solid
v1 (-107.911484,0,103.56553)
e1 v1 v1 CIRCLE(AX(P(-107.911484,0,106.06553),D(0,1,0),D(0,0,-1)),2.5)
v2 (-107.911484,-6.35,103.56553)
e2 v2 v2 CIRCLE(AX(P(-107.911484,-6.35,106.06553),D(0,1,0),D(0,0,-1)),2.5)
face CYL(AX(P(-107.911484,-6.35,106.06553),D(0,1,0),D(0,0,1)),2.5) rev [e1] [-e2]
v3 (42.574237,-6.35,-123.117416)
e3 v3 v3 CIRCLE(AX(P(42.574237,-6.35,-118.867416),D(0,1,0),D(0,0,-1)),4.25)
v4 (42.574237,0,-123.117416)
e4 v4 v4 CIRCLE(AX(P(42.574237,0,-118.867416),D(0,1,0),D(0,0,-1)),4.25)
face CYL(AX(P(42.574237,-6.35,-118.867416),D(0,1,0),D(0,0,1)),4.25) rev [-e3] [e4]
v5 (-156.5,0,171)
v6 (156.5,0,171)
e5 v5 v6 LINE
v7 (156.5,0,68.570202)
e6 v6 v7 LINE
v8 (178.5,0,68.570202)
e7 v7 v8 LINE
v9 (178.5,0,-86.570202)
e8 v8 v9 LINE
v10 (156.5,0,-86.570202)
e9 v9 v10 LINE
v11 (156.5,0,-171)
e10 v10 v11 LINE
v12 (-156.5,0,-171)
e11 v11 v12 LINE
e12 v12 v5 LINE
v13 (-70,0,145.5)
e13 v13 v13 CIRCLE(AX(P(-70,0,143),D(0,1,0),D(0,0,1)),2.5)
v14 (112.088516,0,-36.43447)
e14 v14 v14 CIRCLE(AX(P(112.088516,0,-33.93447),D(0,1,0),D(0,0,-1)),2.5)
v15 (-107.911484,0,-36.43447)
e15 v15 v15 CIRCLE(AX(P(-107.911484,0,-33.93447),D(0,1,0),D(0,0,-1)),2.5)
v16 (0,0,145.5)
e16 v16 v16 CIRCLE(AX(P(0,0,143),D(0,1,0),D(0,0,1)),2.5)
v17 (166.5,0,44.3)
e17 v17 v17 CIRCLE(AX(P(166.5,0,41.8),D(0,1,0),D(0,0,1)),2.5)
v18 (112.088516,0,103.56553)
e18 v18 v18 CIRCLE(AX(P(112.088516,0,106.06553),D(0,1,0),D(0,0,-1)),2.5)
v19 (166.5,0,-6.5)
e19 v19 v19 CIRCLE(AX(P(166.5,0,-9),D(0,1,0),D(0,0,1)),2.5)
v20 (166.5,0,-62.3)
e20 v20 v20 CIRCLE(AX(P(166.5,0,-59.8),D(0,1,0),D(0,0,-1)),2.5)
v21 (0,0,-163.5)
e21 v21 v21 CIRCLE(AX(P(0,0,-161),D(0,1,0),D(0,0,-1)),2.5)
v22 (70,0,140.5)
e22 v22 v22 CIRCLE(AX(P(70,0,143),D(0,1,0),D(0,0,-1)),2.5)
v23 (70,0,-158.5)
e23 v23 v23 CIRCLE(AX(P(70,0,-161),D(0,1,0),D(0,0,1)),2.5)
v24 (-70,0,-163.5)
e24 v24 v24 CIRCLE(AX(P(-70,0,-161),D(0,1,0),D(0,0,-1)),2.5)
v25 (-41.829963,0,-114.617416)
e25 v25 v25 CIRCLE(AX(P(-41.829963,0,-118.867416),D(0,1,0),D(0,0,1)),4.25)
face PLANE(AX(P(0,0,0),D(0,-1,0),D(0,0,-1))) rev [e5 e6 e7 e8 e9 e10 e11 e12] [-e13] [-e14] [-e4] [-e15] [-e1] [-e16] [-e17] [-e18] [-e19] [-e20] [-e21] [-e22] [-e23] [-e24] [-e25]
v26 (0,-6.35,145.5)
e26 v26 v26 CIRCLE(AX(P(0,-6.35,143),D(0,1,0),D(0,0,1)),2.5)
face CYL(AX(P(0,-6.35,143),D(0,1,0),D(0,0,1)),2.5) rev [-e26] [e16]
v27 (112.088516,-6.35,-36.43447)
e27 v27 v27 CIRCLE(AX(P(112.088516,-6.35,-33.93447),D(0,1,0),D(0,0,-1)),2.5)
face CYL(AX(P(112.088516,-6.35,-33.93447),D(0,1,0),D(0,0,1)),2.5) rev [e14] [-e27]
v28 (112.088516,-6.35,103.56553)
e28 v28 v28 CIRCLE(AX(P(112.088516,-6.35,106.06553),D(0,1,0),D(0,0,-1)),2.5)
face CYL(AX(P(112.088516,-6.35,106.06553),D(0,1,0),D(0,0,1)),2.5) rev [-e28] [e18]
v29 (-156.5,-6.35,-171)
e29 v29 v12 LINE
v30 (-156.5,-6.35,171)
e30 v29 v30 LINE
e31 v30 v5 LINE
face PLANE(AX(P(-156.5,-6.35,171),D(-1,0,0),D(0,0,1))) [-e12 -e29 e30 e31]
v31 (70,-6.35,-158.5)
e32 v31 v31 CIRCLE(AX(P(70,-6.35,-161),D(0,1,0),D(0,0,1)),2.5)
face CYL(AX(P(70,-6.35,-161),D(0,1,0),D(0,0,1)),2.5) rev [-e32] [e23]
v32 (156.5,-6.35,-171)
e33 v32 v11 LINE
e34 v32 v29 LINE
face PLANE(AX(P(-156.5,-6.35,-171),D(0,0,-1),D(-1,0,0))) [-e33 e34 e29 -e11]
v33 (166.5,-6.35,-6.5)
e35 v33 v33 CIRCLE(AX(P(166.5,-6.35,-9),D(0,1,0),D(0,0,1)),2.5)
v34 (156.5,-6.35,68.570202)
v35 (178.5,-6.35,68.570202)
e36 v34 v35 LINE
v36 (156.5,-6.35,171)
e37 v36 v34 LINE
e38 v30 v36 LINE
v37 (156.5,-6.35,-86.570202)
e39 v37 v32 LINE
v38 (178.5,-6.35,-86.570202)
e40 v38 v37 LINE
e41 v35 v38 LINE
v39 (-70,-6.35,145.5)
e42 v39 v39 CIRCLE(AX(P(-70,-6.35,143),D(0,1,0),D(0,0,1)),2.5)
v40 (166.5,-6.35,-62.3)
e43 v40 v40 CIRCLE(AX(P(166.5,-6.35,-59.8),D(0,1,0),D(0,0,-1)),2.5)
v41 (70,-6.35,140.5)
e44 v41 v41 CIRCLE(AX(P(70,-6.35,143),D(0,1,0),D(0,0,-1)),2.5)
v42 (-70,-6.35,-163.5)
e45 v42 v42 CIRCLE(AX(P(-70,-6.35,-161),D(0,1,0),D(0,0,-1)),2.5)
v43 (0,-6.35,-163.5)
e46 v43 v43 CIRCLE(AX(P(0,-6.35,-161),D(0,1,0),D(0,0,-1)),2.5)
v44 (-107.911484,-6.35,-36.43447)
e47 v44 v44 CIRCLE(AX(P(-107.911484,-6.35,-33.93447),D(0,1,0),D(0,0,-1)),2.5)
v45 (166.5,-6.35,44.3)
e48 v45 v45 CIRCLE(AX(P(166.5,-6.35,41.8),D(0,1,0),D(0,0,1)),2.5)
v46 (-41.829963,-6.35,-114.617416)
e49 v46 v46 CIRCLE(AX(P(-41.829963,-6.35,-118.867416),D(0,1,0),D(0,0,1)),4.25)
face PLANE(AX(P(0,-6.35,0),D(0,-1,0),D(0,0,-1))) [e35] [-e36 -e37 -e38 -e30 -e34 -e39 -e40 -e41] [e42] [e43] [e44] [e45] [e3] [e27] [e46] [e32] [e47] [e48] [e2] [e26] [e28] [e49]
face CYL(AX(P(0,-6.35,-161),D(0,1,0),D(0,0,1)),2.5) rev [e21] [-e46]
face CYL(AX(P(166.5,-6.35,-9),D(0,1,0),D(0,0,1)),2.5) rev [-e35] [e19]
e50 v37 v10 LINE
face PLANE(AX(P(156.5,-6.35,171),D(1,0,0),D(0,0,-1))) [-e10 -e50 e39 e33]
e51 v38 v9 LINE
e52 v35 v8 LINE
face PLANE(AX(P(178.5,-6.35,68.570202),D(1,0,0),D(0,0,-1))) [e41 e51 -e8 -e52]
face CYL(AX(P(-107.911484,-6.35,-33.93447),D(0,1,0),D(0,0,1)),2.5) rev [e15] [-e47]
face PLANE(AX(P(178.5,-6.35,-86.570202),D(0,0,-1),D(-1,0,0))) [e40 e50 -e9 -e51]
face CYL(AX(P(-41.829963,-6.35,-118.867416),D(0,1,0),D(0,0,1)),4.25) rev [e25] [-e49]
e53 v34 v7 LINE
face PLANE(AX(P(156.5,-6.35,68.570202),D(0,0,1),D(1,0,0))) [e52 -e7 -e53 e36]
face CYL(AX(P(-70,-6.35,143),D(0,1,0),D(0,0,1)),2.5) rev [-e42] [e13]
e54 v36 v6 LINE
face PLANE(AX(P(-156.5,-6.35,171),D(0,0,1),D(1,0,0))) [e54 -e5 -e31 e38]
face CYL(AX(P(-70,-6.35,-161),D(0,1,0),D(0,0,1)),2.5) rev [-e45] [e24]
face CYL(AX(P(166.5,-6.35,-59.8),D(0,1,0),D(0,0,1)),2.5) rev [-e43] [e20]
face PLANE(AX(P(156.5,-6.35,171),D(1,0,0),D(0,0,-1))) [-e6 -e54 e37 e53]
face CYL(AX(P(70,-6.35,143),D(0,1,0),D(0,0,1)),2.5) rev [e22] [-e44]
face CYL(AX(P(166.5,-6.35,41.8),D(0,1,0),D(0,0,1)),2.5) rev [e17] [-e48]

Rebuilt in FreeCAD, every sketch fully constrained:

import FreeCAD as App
import Part
import Sketcher

V = App.Vector
Q = App.Units.Quantity

doc = App.newDocument("Part")
body = doc.addObject("PartDesign::Body", "Body")

# Sketch on XZ plane
sketch1 = body.newObject("Sketcher::SketchObject", "Sketch")
sketch1.AttachmentSupport = (doc.getObject("XZ_Plane"), [""])
sketch1.MapMode = "FlatFace"
sketch1.addGeometry(Part.LineSegment(V(-156, -171, 0), V(-156, 171, 0)), False)
sketch1.addGeometry(Part.LineSegment(V(-156, 171, 0), V(156, 171, 0)), False)
sketch1.addGeometry(Part.LineSegment(V(156, 171, 0), V(156, -171, 0)), False)
sketch1.addGeometry(Part.LineSegment(V(156, -171, 0), V(-156, -171, 0)), False)
sketch1.addConstraint(Sketcher.Constraint("Coincident", 0, 2, 1, 1))
sketch1.addConstraint(Sketcher.Constraint("Coincident", 1, 2, 2, 1))
sketch1.addConstraint(Sketcher.Constraint("Coincident", 2, 2, 3, 1))
sketch1.addConstraint(Sketcher.Constraint("Coincident", 3, 2, 0, 1))
sketch1.addConstraint(Sketcher.Constraint("Vertical", 0))
sketch1.addConstraint(Sketcher.Constraint("Horizontal", 1))
sketch1.addConstraint(Sketcher.Constraint("Vertical", 2))
sketch1.addConstraint(Sketcher.Constraint("Horizontal", 3))
sketch1.addConstraint(Sketcher.Constraint("Symmetric", 0, 2, 2, 2, -1, 1))
sketch1.addConstraint(Sketcher.Constraint("DistanceX", 1, 1, 1, 2, Q("313 mm")))
sketch1.addConstraint(Sketcher.Constraint("DistanceY", 0, 1, 0, 2, Q("342 mm")))
pad1 = body.newObject("PartDesign::Pad", "Pad")
pad1.Profile = sketch1
pad1.Length = 6.35

# Sketch on XZ plane
sketch2 = body.newObject("Sketcher::SketchObject", "Sketch001")
sketch2.AttachmentSupport = (doc.getObject("XZ_Plane"), [""])
sketch2.MapMode = "FlatFace"
sketch2.addGeometry(Part.LineSegment(V(156.5, -86.6, 0), V(156.5, 68.6, 0)), False)
sketch2.addGeometry(Part.LineSegment(V(156.5, 68.6, 0), V(178.5, 68.6, 0)), False)
sketch2.addGeometry(Part.LineSegment(V(178.5, 68.6, 0), V(178.5, -86.6, 0)), False)
sketch2.addGeometry(Part.LineSegment(V(178.5, -86.6, 0), V(156.5, -86.6, 0)), False)
sketch2.addGeometry(Part.Circle(V(166.5, 41.8, 0), V(0, 0, 1), 2.5), False)
sketch2.addGeometry(Part.Circle(V(166.5, -9, 0), V(0, 0, 1), 2.5), False)
sketch2.addGeometry(Part.Circle(V(166.5, -59.8, 0), V(0, 0, 1), 2.5), False)
sketch2.addConstraint(Sketcher.Constraint("Coincident", 0, 2, 1, 1))
sketch2.addConstraint(Sketcher.Constraint("Coincident", 1, 2, 2, 1))
sketch2.addConstraint(Sketcher.Constraint("Coincident", 2, 2, 3, 1))
sketch2.addConstraint(Sketcher.Constraint("Coincident", 3, 2, 0, 1))
sketch2.addConstraint(Sketcher.Constraint("Vertical", 0))
sketch2.addConstraint(Sketcher.Constraint("Horizontal", 1))
sketch2.addConstraint(Sketcher.Constraint("Vertical", 2))
sketch2.addConstraint(Sketcher.Constraint("Horizontal", 3))
sketch2.addConstraint(Sketcher.Constraint("Equal", 4, 5))
sketch2.addConstraint(Sketcher.Constraint("Equal", 5, 6))
sketch2.addConstraint(Sketcher.Constraint("Vertical", 4, 3, 5, 3))
sketch2.addConstraint(Sketcher.Constraint("Vertical", 5, 3, 6, 3))
sketch2.addConstraint(Sketcher.Constraint("Diameter", 4, Q("5 mm")))
sketch2.addConstraint(Sketcher.Constraint("DistanceX", 1, 1, 1, 2, Q("22 mm")))
sketch2.addConstraint(Sketcher.Constraint("DistanceY", 5, 3, -1, 1, Q("9 mm")))
sketch2.addConstraint(Sketcher.Constraint("DistanceX", 0, 2, 4, 3, Q("10 mm")))
sketch2.addConstraint(Sketcher.Constraint("DistanceX", -1, 1, 4, 3, Q("166.5 mm")))
sketch2.addConstraint(Sketcher.Constraint("DistanceY", -1, 1, 4, 3, Q("41.8 mm")))
sketch2.addConstraint(Sketcher.Constraint("DistanceY", 6, 3, -1, 1, Q("59.8 mm")))
sketch2.addConstraint(Sketcher.Constraint("DistanceY", -1, 1, 0, 2, Q("68.570202 mm")))
sketch2.addConstraint(Sketcher.Constraint("DistanceY", 2, 2, -1, 1, Q("86.570202 mm")))
pad2 = body.newObject("PartDesign::Pad", "Pad001")
pad2.Profile = sketch2
pad2.Length = 6.35

# Sketch on XZ plane
sketch3 = body.newObject("Sketcher::SketchObject", "Sketch002")
sketch3.AttachmentSupport = (doc.getObject("XZ_Plane"), [""])
sketch3.MapMode = "FlatFace"
sketch3.addGeometry(Part.Circle(V(0, 143, 0), V(0, 0, 1), 2.5), False)
sketch3.addGeometry(Part.Circle(V(-70, 143, 0), V(0, 0, 1), 2.5), False)
sketch3.addGeometry(Part.Circle(V(70, 143, 0), V(0, 0, 1), 2.5), False)
sketch3.addGeometry(Part.Circle(V(-70, -161, 0), V(0, 0, 1), 2.5), False)
sketch3.addGeometry(Part.Circle(V(0, -161, 0), V(0, 0, 1), 2.5), False)
sketch3.addGeometry(Part.Circle(V(70, -161, 0), V(0, 0, 1), 2.5), False)
sketch3.addConstraint(Sketcher.Constraint("Equal", 0, 1))
sketch3.addConstraint(Sketcher.Constraint("Equal", 1, 2))
sketch3.addConstraint(Sketcher.Constraint("Equal", 2, 3))
sketch3.addConstraint(Sketcher.Constraint("Equal", 3, 4))
sketch3.addConstraint(Sketcher.Constraint("Equal", 4, 5))
sketch3.addConstraint(Sketcher.Constraint("Symmetric", 1, 3, 2, 3, -2))
sketch3.addConstraint(Sketcher.Constraint("Symmetric", 3, 3, 5, 3, -2))
sketch3.addConstraint(Sketcher.Constraint("PointOnObject", 0, 3, -2))
sketch3.addConstraint(Sketcher.Constraint("PointOnObject", 4, 3, -2))
sketch3.addConstraint(Sketcher.Constraint("Horizontal", 0, 3, 1, 3))
sketch3.addConstraint(Sketcher.Constraint("Horizontal", 3, 3, 4, 3))
sketch3.addConstraint(Sketcher.Constraint("Vertical", 1, 3, 3, 3))
sketch3.addConstraint(Sketcher.Constraint("Diameter", 0, Q("5 mm")))
sketch3.addConstraint(Sketcher.Constraint("DistanceY", -1, 1, 0, 3, Q("143 mm")))
sketch3.addConstraint(Sketcher.Constraint("DistanceX", 1, 3, -1, 1, Q("70 mm")))
sketch3.addConstraint(Sketcher.Constraint("DistanceY", 3, 3, -1, 1, Q("161 mm")))
pocket1 = body.newObject("PartDesign::Pocket", "Pocket")
pocket1.Profile = sketch3
pocket1.Type = "ThroughAll"
pocket1.Reversed = True

# Sketch on XZ plane
sketch4 = body.newObject("Sketcher::SketchObject", "Sketch003")
sketch4.AttachmentSupport = (doc.getObject("XZ_Plane"), [""])
sketch4.MapMode = "FlatFace"
sketch4.addGeometry(Part.Circle(V(42.6, -118.9, 0), V(0, 0, 1), 4.2), False)
sketch4.addGeometry(Part.Circle(V(-41.8, -118.9, 0), V(0, 0, 1), 4.2), False)
sketch4.addGeometry(Part.Circle(V(-107.9, 106.1, 0), V(0, 0, 1), 2.5), False)
sketch4.addGeometry(Part.Circle(V(-107.9, -33.9, 0), V(0, 0, 1), 2.5), False)
sketch4.addGeometry(Part.Circle(V(112.1, -33.9, 0), V(0, 0, 1), 2.5), False)
sketch4.addGeometry(Part.Circle(V(112.1, 106.1, 0), V(0, 0, 1), 2.5), False)
sketch4.addConstraint(Sketcher.Constraint("Equal", 0, 1))
sketch4.addConstraint(Sketcher.Constraint("Equal", 2, 3))
sketch4.addConstraint(Sketcher.Constraint("Equal", 3, 4))
sketch4.addConstraint(Sketcher.Constraint("Equal", 4, 5))
sketch4.addConstraint(Sketcher.Constraint("Horizontal", 0, 3, 1, 3))
sketch4.addConstraint(Sketcher.Constraint("Horizontal", 3, 3, 4, 3))
sketch4.addConstraint(Sketcher.Constraint("Horizontal", 2, 3, 5, 3))
sketch4.addConstraint(Sketcher.Constraint("Vertical", 2, 3, 3, 3))
sketch4.addConstraint(Sketcher.Constraint("Vertical", 4, 3, 5, 3))
sketch4.addConstraint(Sketcher.Constraint("Diameter", 2, Q("5 mm")))
sketch4.addConstraint(Sketcher.Constraint("Diameter", 0, Q("8.5 mm")))
sketch4.addConstraint(Sketcher.Constraint("DistanceY", 3, 3, 2, 3, Q("140 mm")))
sketch4.addConstraint(Sketcher.Constraint("DistanceX", 3, 3, 4, 3, Q("220 mm")))
sketch4.addConstraint(Sketcher.Constraint("DistanceX", 1, 3, 0, 3, Q("84.4042 mm")))
sketch4.addConstraint(Sketcher.Constraint("DistanceY", -1, 1, 2, 3, Q("106.06553 mm")))
sketch4.addConstraint(Sketcher.Constraint("DistanceX", 2, 3, 1, 3, Q("66.081522 mm")))
sketch4.addConstraint(Sketcher.Constraint("DistanceX", -1, 1, 0, 3, Q("42.574237 mm")))
sketch4.addConstraint(Sketcher.Constraint("DistanceY", 0, 3, -1, 1, Q("118.867416 mm")))
pocket2 = body.newObject("PartDesign::Pocket", "Pocket001")
pocket2.Profile = sketch4
pocket2.Type = "ThroughAll"
pocket2.Reversed = True

doc.recompute()
